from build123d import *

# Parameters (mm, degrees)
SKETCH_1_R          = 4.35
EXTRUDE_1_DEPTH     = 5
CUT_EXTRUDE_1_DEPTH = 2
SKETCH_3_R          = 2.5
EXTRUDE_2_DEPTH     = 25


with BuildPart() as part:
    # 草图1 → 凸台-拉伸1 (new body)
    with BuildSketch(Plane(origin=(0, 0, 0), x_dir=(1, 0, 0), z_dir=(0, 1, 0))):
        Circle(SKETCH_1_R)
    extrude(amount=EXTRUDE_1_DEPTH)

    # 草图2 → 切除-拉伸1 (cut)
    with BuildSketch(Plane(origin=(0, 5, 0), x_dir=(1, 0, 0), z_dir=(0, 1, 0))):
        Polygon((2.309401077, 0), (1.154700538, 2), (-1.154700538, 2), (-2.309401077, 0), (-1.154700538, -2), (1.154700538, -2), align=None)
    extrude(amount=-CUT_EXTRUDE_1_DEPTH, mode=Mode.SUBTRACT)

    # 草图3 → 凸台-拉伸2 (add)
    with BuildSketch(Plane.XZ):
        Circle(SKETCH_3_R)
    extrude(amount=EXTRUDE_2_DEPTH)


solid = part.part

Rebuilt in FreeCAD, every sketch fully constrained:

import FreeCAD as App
import Part
import Sketcher
Q = App.Units.Quantity

doc = App.newDocument("Part")
params = doc.addObject("Spreadsheet::Sheet", "Params")
for row, (alias, value) in enumerate([
    ("sketch1_diameter", "8.7 mm"),
    ("pad1_length", "5 mm"),
    ("pocket1_length", "2 mm"),
    ("sketch3_diameter", "5 mm"),
    ("pad2_length", "25 mm"),
], start=1):
    params.set(f"A{row}", alias)
    params.set(f"B{row}", "=" + value)
    params.setAlias(f"B{row}", alias)

body = doc.addObject("PartDesign::Body", "Body")

# Sketch on XZ plane
sketch1 = body.newObject("Sketcher::SketchObject", "Sketch")
sketch1.AttachmentSupport = (doc.getObject("XZ_Plane"), [""])
sketch1.MapMode = "FlatFace"
sketch1.addGeometry(Part.Circle(App.Vector(0, 0, 0), App.Vector(0, 0, 1), 4.3), False)
sketch1.addConstraint([
    Sketcher.Constraint("Coincident", 0, 3, -1, 1),
    Sketcher.Constraint("Diameter", 0, 8.7),
])
sketch1.setExpression("Constraints[1]", "Params.sketch1_diameter")
pad1 = body.newObject("PartDesign::Pad", "Pad")
pad1.Profile = sketch1
pad1.setExpression("Length", "Params.pad1_length")
pad1.Reversed = True

# Sketch on XZ plane
sketch2 = body.newObject("Sketcher::SketchObject", "Sketch001")
sketch2.AttachmentSupport = (doc.getObject("XZ_Plane"), [""])
sketch2.MapMode = "FlatFace"
sketch2.AttachmentOffset = App.Placement(App.Vector(0, 0, -5), App.Rotation())
sketch2.addGeometry([
    Part.LineSegment(App.Vector(2.3, 0, 0), App.Vector(1.2, -2, 0)),  # 0
    Part.LineSegment(App.Vector(1.2, -2, 0), App.Vector(-1.2, -2, 0)),  # 1
    Part.LineSegment(App.Vector(-1.2, -2, 0), App.Vector(-2.3, 0, 0)),  # 2
    Part.LineSegment(App.Vector(-2.3, 0, 0), App.Vector(-1.2, 2, 0)),  # 3
    Part.LineSegment(App.Vector(-1.2, 2, 0), App.Vector(1.2, 2, 0)),  # 4
    Part.LineSegment(App.Vector(1.2, 2, 0), App.Vector(2.3, 0, 0)),  # 5
], False)
sketch2.addConstraint([
    Sketcher.Constraint("Coincident", 0, 2, 1, 1),
    Sketcher.Constraint("Coincident", 1, 2, 2, 1),
    Sketcher.Constraint("Coincident", 2, 2, 3, 1),
    Sketcher.Constraint("Coincident", 3, 2, 4, 1),
    Sketcher.Constraint("Coincident", 4, 2, 5, 1),
    Sketcher.Constraint("Coincident", 5, 2, 0, 1),
    Sketcher.Constraint("Horizontal", 1),
    Sketcher.Constraint("Horizontal", 4),
    Sketcher.Constraint("Symmetric", 0, 2, 3, 2, -1, 1),
    Sketcher.Constraint("Symmetric", 2, 2, 5, 2, -1, 1),
    Sketcher.Constraint("PointOnObject", 2, 2, -1),
    Sketcher.Constraint("Parallel", 2, 5),
    Sketcher.Constraint("Vertical", 1, 2, 3, 2),
    Sketcher.Constraint("Angle", 0, Q("-120 deg")),
    Sketcher.Constraint("DistanceY", 0, 2, -1, 1, 2.0),
    Sketcher.Constraint("DistanceX", 1, 2, 1, 1, 2.309401),
])
pocket1 = body.newObject("PartDesign::Pocket", "Pocket")
pocket1.Profile = sketch2
pocket1.setExpression("Length", "Params.pocket1_length")
pocket1.Reversed = True

# Sketch on XZ plane
sketch3 = body.newObject("Sketcher::SketchObject", "Sketch002")
sketch3.AttachmentSupport = (doc.getObject("XZ_Plane"), [""])
sketch3.MapMode = "FlatFace"
sketch3.addGeometry(Part.Circle(App.Vector(0, 0, 0), App.Vector(0, 0, 1), 2.5), False)
sketch3.addConstraint([
    Sketcher.Constraint("Coincident", 0, 3, -1, 1),
    Sketcher.Constraint("Diameter", 0, 5.0),
])
sketch3.setExpression("Constraints[1]", "Params.sketch3_diameter")
pad2 = body.newObject("PartDesign::Pad", "Pad001")
pad2.Profile = sketch3
pad2.setExpression("Length", "Params.pad2_length")

doc.recompute()
